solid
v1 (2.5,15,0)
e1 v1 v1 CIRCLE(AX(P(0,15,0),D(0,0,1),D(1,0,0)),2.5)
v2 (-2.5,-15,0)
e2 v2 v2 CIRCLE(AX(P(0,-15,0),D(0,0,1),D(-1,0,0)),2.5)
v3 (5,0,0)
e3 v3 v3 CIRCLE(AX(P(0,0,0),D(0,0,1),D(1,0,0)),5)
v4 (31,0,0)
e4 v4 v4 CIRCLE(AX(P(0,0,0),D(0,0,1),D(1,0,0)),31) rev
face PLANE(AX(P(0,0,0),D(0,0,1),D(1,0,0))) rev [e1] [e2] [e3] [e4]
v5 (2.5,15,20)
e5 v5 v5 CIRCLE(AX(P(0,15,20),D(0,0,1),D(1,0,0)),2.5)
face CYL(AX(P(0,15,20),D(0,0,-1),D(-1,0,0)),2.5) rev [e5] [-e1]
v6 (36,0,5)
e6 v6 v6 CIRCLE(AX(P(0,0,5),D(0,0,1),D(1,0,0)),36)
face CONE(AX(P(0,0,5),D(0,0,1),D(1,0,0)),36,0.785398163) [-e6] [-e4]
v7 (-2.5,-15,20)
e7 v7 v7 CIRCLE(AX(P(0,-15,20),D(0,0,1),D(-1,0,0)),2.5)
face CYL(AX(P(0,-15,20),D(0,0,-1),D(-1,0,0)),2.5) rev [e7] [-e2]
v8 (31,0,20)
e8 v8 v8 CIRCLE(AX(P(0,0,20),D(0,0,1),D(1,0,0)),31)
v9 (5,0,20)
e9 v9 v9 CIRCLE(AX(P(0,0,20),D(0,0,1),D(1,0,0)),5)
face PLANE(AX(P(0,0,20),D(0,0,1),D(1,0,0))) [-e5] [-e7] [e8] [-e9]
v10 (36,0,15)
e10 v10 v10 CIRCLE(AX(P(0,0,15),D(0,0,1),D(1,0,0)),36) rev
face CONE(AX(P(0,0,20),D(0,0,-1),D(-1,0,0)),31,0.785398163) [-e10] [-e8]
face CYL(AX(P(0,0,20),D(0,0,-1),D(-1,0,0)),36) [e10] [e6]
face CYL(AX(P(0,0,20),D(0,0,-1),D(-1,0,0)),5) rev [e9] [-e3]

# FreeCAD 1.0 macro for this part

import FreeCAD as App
import Part
import Sketcher

V = App.Vector


def edges_at(feature, points):
    """Names of the edges that pass closest to the given points."""
    edges = feature.Shape.Edges
    near = lambda p: min(range(len(edges)), key=lambda i: edges[i].distToShape(Part.Vertex(*p))[0])
    return sorted({f"Edge{near(p) + 1}" for p in points})

doc = App.newDocument("Part")
body = doc.addObject("PartDesign::Body", "Body")

# Sketch on XY plane
sketch1 = doc.addObject("Sketcher::SketchObject", "Sketch")
body.addObject(sketch1)
sketch1.AttachmentSupport = (doc.XY_Plane, [""])
sketch1.MapMode = "FlatFace"
sketch1.addGeometry([
    Part.Circle(V(0, 0, 0), V(0, 0, 1), 36),
    Part.Circle(V(0, -15, 0), V(0, 0, 1), 2.5),
    Part.Circle(V(0, 0, 0), V(0, 0, 1), 5),
    Part.Circle(V(0, 15, 0), V(0, 0, 1), 2.5),
], False)
sketch1.addConstraint([
    Sketcher.Constraint("Coincident", 0, 3, -1, 1),
    Sketcher.Constraint("Coincident", 2, 3, -1, 1),
    Sketcher.Constraint("Equal", 1, 3),
    Sketcher.Constraint("Symmetric", 1, 3, 3, 3, -1, 1),
    Sketcher.Constraint("PointOnObject", 1, 3, -2),
    Sketcher.Constraint("Diameter", 0, 72.0),
    Sketcher.Constraint("Diameter", 1, 5.0),
    Sketcher.Constraint("Diameter", 2, 10.0),
    Sketcher.Constraint("DistanceY", 1, 3, -1, 1, 15.0),
])
pad1 = doc.addObject("PartDesign::Pad", "Pad")
body.addObject(pad1)
pad1.Profile = sketch1
pad1.Length = 20
doc.recompute()

chamfer = doc.addObject("PartDesign::Chamfer", "Chamfer")
body.addObject(chamfer)
chamfer.Base = (pad1, edges_at(pad1, [(-36, 0, 0), (-36, 0, 20)]))
chamfer.Size = 5

doc.recompute()
